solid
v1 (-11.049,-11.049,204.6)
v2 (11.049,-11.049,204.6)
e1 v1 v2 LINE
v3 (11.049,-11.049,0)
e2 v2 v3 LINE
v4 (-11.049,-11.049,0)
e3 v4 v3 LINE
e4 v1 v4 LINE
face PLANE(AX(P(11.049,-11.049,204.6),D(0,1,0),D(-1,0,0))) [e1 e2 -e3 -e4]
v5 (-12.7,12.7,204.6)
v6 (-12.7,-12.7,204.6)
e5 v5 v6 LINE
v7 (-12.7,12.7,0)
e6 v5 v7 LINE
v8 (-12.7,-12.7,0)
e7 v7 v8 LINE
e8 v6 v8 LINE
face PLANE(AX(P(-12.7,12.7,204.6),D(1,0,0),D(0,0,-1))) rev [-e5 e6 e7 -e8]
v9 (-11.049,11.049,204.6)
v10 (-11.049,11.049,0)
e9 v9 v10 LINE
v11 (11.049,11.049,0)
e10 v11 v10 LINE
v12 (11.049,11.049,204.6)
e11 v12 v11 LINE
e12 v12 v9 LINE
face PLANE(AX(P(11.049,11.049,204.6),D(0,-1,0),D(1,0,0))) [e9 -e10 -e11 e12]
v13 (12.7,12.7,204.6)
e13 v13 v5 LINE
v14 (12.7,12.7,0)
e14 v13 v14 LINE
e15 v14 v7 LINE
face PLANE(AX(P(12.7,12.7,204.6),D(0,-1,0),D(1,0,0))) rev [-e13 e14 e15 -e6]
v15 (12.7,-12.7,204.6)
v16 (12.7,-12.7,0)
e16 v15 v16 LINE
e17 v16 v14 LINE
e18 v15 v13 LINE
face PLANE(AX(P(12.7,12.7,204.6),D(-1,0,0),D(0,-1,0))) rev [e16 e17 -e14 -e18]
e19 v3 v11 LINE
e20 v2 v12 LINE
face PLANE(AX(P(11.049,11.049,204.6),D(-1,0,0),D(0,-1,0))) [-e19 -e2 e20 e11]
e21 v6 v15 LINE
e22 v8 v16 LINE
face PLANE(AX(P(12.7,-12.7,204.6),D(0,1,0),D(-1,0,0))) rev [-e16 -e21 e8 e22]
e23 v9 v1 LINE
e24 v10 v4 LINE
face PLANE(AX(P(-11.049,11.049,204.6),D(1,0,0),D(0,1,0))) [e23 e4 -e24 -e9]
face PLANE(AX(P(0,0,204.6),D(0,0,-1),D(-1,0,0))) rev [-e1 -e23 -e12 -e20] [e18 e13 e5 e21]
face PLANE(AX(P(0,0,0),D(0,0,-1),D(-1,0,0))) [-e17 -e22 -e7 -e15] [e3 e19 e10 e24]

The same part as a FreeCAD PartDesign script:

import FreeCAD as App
import Part
import Sketcher

V = App.Vector
Q = App.Units.Quantity

doc = App.newDocument("Part")
body = doc.addObject("PartDesign::Body", "Body")

sketch1 = body.newObject("Sketcher::SketchObject", "Sketch")
sketch1.AttachmentSupport = (doc.getObject("XY_Plane"), [""])
sketch1.MapMode = "FlatFace"
sketch1.addGeometry([
    Part.LineSegment(V(-13, 13, 0), V(-13, -13, 0)),
    Part.LineSegment(V(-13, -13, 0), V(13, -13, 0)),
    Part.LineSegment(V(13, -13, 0), V(13, 13, 0)),
    Part.LineSegment(V(13, 13, 0), V(-13, 13, 0)),
    Part.LineSegment(V(11, -11, 0), V(-11, -11, 0)),
    Part.LineSegment(V(-11, -11, 0), V(-11, 11, 0)),
    Part.LineSegment(V(-11, 11, 0), V(11, 11, 0)),
    Part.LineSegment(V(11, 11, 0), V(11, -11, 0)),
], False)
sketch1.addConstraint([
    Sketcher.Constraint("Coincident", 0, 2, 1, 1),
    Sketcher.Constraint("Coincident", 1, 2, 2, 1),
    Sketcher.Constraint("Coincident", 2, 2, 3, 1),
    Sketcher.Constraint("Coincident", 3, 2, 0, 1),
    Sketcher.Constraint("Coincident", 4, 2, 5, 1),
    Sketcher.Constraint("Coincident", 5, 2, 6, 1),
    Sketcher.Constraint("Coincident", 6, 2, 7, 1),
    Sketcher.Constraint("Coincident", 7, 2, 4, 1),
    Sketcher.Constraint("Vertical", 0),
    Sketcher.Constraint("Horizontal", 1),
    Sketcher.Constraint("Vertical", 2),
    Sketcher.Constraint("Horizontal", 3),
    Sketcher.Constraint("Horizontal", 4),
    Sketcher.Constraint("Vertical", 5),
    Sketcher.Constraint("Horizontal", 6),
    Sketcher.Constraint("Vertical", 7),
    Sketcher.Constraint("Symmetric", 0, 2, 2, 2, -1, 1),
    Sketcher.Constraint("Symmetric", 4, 2, 6, 2, -1, 1),
    Sketcher.Constraint("Equal", 3, 0),
    Sketcher.Constraint("Equal", 6, 5),
    Sketcher.Constraint("DistanceX", 1, 1, 1, 2, Q("1 in")),
    Sketcher.Constraint("DistanceX", 4, 2, 4, 1, Q("0.87 in")),
])
pad1 = body.newObject("PartDesign::Pad", "Pad")
pad1.Profile = sketch1
pad1.Length = 204.6

doc.recompute()
